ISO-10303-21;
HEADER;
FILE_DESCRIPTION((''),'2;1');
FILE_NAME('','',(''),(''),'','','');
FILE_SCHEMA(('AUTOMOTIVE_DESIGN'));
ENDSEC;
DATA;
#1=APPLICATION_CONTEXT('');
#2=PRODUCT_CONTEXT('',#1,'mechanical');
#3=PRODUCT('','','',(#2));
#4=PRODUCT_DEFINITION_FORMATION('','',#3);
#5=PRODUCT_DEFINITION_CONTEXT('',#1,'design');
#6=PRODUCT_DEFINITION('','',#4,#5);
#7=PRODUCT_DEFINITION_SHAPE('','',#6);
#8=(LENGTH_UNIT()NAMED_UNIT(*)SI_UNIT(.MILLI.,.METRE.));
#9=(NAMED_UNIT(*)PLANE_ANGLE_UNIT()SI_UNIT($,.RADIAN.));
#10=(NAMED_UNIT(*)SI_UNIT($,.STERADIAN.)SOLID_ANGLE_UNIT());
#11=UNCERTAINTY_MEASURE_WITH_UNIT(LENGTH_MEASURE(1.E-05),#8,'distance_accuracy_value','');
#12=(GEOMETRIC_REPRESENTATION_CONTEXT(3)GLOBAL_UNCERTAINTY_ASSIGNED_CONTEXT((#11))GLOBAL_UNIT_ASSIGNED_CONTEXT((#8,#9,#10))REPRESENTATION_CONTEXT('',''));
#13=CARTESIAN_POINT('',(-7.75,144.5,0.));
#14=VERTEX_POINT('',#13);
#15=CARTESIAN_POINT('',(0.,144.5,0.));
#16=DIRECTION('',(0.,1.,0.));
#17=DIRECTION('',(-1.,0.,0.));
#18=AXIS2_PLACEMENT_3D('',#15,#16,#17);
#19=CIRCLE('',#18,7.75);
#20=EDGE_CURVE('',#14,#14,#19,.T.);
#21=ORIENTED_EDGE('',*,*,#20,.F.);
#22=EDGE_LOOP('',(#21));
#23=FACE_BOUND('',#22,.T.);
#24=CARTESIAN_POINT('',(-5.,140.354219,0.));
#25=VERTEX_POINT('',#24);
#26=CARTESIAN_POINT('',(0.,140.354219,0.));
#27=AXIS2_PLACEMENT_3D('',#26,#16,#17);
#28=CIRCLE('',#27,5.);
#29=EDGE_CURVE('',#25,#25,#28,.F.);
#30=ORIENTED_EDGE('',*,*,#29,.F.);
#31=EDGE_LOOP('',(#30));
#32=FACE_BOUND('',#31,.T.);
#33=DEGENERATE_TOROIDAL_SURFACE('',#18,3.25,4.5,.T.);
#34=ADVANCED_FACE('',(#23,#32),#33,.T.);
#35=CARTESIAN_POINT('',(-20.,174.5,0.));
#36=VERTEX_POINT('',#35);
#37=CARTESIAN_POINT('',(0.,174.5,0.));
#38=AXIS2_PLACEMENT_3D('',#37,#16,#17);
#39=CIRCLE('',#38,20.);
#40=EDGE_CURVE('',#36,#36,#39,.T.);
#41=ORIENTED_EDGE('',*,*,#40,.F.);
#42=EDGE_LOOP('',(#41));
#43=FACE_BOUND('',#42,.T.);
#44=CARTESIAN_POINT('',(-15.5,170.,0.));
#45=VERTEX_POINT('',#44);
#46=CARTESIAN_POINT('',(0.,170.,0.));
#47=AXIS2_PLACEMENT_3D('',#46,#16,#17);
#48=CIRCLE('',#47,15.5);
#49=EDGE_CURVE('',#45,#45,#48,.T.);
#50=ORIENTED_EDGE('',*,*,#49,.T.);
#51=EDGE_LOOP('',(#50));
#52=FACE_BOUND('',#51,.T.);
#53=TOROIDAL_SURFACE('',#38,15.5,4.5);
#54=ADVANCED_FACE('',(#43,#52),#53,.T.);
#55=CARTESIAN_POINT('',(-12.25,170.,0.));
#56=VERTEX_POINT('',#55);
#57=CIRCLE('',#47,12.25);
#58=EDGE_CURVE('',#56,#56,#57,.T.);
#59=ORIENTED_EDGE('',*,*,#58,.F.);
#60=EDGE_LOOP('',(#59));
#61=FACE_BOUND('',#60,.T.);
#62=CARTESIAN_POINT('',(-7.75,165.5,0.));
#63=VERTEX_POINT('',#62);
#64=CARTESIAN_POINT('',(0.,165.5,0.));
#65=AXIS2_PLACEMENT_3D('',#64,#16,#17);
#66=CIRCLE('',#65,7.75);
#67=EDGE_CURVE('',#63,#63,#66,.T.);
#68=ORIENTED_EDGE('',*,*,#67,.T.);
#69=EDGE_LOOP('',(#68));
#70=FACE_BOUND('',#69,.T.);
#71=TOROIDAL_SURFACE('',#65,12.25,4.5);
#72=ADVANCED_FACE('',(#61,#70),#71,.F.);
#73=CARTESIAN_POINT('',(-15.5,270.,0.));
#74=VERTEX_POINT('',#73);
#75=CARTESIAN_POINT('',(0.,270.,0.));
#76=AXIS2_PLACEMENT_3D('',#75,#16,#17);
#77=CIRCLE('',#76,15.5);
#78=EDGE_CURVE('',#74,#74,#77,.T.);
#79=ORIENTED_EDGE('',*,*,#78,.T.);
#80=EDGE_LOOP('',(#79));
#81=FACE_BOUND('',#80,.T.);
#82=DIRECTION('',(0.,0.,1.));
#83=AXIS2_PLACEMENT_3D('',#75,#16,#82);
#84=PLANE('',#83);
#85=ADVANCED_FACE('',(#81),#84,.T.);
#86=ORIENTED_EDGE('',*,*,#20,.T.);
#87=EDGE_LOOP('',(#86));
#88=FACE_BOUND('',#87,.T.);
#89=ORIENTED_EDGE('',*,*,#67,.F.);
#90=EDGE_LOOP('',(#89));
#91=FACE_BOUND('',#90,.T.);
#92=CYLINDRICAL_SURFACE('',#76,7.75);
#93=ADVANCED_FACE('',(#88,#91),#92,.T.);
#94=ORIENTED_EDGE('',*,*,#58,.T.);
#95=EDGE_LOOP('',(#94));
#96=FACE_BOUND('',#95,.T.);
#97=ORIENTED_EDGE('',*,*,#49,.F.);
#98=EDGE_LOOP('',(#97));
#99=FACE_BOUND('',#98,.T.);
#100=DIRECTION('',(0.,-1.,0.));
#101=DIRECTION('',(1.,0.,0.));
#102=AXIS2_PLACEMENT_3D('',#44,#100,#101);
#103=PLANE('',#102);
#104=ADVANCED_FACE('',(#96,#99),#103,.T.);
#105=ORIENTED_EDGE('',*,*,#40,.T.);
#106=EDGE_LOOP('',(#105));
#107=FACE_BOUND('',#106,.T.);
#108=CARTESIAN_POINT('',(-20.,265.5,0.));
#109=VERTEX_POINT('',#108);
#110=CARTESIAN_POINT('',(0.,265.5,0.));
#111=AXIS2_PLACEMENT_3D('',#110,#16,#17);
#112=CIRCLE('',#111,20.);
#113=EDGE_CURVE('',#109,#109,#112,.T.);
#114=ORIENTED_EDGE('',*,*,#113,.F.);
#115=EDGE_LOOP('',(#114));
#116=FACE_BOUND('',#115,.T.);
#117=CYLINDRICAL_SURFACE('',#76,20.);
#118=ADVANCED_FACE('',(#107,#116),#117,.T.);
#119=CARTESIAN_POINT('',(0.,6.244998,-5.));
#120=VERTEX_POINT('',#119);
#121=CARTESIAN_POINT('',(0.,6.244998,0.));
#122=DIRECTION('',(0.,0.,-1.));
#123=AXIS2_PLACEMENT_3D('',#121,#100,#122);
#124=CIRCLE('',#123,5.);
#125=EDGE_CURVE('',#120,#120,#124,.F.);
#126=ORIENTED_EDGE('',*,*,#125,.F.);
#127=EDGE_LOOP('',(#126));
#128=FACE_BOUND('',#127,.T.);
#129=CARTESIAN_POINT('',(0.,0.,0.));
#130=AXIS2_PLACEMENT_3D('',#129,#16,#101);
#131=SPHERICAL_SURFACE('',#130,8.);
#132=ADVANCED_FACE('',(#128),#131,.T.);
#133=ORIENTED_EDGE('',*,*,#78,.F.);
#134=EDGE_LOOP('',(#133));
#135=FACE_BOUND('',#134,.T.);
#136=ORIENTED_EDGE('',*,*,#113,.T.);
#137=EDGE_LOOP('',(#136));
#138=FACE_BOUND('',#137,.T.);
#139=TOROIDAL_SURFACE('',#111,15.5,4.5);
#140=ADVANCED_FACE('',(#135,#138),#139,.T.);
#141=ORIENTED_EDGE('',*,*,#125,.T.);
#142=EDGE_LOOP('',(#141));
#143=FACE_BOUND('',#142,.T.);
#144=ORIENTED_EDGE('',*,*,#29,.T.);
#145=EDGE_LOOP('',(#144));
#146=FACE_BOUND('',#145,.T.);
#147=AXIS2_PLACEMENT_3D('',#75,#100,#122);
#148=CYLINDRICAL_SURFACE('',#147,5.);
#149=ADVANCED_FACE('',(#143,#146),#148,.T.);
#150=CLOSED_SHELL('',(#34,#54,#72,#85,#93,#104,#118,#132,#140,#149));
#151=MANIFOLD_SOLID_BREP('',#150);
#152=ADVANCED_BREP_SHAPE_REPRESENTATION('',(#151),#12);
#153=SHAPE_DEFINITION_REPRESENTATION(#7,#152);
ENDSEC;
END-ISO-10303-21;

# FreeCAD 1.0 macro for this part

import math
import FreeCAD as App
import Part
import Sketcher
Q = App.Units.Quantity

doc = App.newDocument("Part")
params = doc.addObject("Spreadsheet::Sheet", "Params")
for row, (alias, value) in enumerate([
    ("sketch1_radius", "8 mm"),
    ("revolution_angle", "360 deg"),
    ("sketch2_diameter", "10 mm"),
    ("pad1_length", "270 mm"),
    ("sketch3_radius", "4.5 mm"),
    ("sketch3_height", "91 mm"),
    ("sketch3_height2", "21 mm"),
    ("sketch3_width", "15.5 mm"),
    ("revolution2_angle", "360 deg"),
], start=1):
    params.set(f"A{row}", alias)
    params.set(f"B{row}", "=" + value)
    params.setAlias(f"B{row}", alias)

body = doc.addObject("PartDesign::Body", "Body")

# Sketch on XY plane
sketch1 = body.newObject("Sketcher::SketchObject", "Sketch")
sketch1.AttachmentSupport = (doc.getObject("XY_Plane"), [""])
sketch1.MapMode = "FlatFace"
sketch1.addGeometry([
    Part.LineSegment(App.Vector(0, 8, 0), App.Vector(0, -8, 0)),
    Part.ArcOfCircle(Part.Circle(App.Vector(0, 0, 0), App.Vector(0, 0, 1), 8), math.radians(-90), math.radians(90)),
], False)
sketch1.addConstraint([
    Sketcher.Constraint("Coincident", 0, 1, 1, 2),
    Sketcher.Constraint("Coincident", 1, 1, 0, 2),
    Sketcher.Constraint("Vertical", 0),
    Sketcher.Constraint("Coincident", 1, 3, -1, 1),
    Sketcher.Constraint("PointOnObject", 0, 1, -2),
    Sketcher.Constraint("Radius", 1, Q("8 mm")),
])
sketch1.setExpression("Constraints[5]", "Params.sketch1_radius")
revolution = body.newObject("PartDesign::Revolution", "Revolution")
revolution.Profile = sketch1
revolution.ReferenceAxis = (sketch1, ["V_Axis"])
revolution.setExpression("Angle", "Params.revolution_angle")

# Sketch on XZ plane
sketch2 = body.newObject("Sketcher::SketchObject", "Sketch001")
sketch2.AttachmentSupport = (doc.getObject("XZ_Plane"), [""])
sketch2.MapMode = "FlatFace"
sketch2.addGeometry(Part.Circle(App.Vector(0, 0, 0), App.Vector(0, 0, 1), 5), False)
sketch2.addConstraint([
    Sketcher.Constraint("Coincident", 0, 3, -1, 1),
    Sketcher.Constraint("Diameter", 0, Q("10 mm")),
])
sketch2.setExpression("Constraints[1]", "Params.sketch2_diameter")
pad1 = body.newObject("PartDesign::Pad", "Pad")
pad1.Profile = sketch2
pad1.setExpression("Length", "Params.pad1_length")
pad1.Reversed = True

# Sketch on XY plane
sketch3 = body.newObject("Sketcher::SketchObject", "Sketch002")
sketch3.AttachmentSupport = (doc.getObject("XY_Plane"), [""])
sketch3.MapMode = "FlatFace"
sketch3.addGeometry([
    Part.LineSegment(App.Vector(0, 270, 0), App.Vector(-15.5, 270, 0)),  # 0
    Part.ArcOfCircle(Part.Circle(App.Vector(-15.5, 265.5, 0), App.Vector(0, 0, 1), 4.5), math.radians(90), math.radians(180)),  # 1
    Part.LineSegment(App.Vector(-20, 265.5, 0), App.Vector(-20, 174.5, 0)),  # 2
    Part.ArcOfCircle(Part.Circle(App.Vector(-15.5, 174.5, 0), App.Vector(0, 0, 1), 4.5), math.radians(-180), math.radians(-90)),  # 3
    Part.LineSegment(App.Vector(-15.5, 170, 0), App.Vector(-12.2, 170, 0)),  # 4
    Part.ArcOfCircle(Part.Circle(App.Vector(-12.3, 165.5, 0), App.Vector(0, 0, 1), 4.5), math.radians(0), math.radians(90)),  # 5
    Part.LineSegment(App.Vector(-7.8, 165.5, 0), App.Vector(-7.8, 144.5, 0)),  # 6
    Part.ArcOfCircle(Part.Circle(App.Vector(-3.2, 144.5, 0), App.Vector(0, 0, 1), 4.5), math.radians(-180), math.radians(-90)),  # 7
    Part.LineSegment(App.Vector(-3.2, 140, 0), App.Vector(0, 140, 0)),  # 8
    Part.LineSegment(App.Vector(0, 140, 0), App.Vector(0, 270, 0)),  # 9
], False)
sketch3.addConstraint([
    Sketcher.Constraint("Tangent", 0, 2, 1, 1),
    Sketcher.Constraint("Tangent", 1, 2, 2, 1),
    Sketcher.Constraint("Tangent", 2, 2, 3, 1),
    Sketcher.Constraint("Tangent", 3, 2, 4, 1),
    Sketcher.Constraint("Tangent", 4, 2, 5, 2),
    Sketcher.Constraint("Tangent", 5, 1, 6, 1),
    Sketcher.Constraint("Tangent", 6, 2, 7, 1),
    Sketcher.Constraint("Tangent", 7, 2, 8, 1),
    Sketcher.Constraint("Coincident", 8, 2, 9, 1),
    Sketcher.Constraint("Coincident", 9, 2, 0, 1),
    Sketcher.Constraint("Horizontal", 0),
    Sketcher.Constraint("Vertical", 2),
    Sketcher.Constraint("Horizontal", 4),
    Sketcher.Constraint("Vertical", 6),
    Sketcher.Constraint("Horizontal", 8),
    Sketcher.Constraint("Vertical", 9),
    Sketcher.Constraint("Equal", 1, 3),
    Sketcher.Constraint("Equal", 3, 5),
    Sketcher.Constraint("Equal", 5, 7),
    Sketcher.Constraint("PointOnObject", 8, 2, -2),
    Sketcher.Constraint("Equal", 4, 8),
    Sketcher.Constraint("Radius", 1, Q("4.5 mm")),
    Sketcher.Constraint("DistanceY", 2, 2, 2, 1, Q("91 mm")),
    Sketcher.Constraint("DistanceY", 6, 2, 6, 1, Q("21 mm")),
    Sketcher.Constraint("DistanceX", 0, 2, 0, 1, Q("15.5 mm")),
    Sketcher.Constraint("DistanceY", -1, 1, 0, 2, Q("270 mm")),
])
sketch3.setExpression("Constraints[21]", "Params.sketch3_radius")
sketch3.setExpression("Constraints[22]", "Params.sketch3_height")
sketch3.setExpression("Constraints[23]", "Params.sketch3_height2")
sketch3.setExpression("Constraints[24]", "Params.sketch3_width")
revolution2 = body.newObject("PartDesign::Revolution", "Revolution001")
revolution2.Profile = sketch3
revolution2.ReferenceAxis = (sketch3, ["V_Axis"])
revolution2.setExpression("Angle", "Params.revolution2_angle")

doc.recompute()
